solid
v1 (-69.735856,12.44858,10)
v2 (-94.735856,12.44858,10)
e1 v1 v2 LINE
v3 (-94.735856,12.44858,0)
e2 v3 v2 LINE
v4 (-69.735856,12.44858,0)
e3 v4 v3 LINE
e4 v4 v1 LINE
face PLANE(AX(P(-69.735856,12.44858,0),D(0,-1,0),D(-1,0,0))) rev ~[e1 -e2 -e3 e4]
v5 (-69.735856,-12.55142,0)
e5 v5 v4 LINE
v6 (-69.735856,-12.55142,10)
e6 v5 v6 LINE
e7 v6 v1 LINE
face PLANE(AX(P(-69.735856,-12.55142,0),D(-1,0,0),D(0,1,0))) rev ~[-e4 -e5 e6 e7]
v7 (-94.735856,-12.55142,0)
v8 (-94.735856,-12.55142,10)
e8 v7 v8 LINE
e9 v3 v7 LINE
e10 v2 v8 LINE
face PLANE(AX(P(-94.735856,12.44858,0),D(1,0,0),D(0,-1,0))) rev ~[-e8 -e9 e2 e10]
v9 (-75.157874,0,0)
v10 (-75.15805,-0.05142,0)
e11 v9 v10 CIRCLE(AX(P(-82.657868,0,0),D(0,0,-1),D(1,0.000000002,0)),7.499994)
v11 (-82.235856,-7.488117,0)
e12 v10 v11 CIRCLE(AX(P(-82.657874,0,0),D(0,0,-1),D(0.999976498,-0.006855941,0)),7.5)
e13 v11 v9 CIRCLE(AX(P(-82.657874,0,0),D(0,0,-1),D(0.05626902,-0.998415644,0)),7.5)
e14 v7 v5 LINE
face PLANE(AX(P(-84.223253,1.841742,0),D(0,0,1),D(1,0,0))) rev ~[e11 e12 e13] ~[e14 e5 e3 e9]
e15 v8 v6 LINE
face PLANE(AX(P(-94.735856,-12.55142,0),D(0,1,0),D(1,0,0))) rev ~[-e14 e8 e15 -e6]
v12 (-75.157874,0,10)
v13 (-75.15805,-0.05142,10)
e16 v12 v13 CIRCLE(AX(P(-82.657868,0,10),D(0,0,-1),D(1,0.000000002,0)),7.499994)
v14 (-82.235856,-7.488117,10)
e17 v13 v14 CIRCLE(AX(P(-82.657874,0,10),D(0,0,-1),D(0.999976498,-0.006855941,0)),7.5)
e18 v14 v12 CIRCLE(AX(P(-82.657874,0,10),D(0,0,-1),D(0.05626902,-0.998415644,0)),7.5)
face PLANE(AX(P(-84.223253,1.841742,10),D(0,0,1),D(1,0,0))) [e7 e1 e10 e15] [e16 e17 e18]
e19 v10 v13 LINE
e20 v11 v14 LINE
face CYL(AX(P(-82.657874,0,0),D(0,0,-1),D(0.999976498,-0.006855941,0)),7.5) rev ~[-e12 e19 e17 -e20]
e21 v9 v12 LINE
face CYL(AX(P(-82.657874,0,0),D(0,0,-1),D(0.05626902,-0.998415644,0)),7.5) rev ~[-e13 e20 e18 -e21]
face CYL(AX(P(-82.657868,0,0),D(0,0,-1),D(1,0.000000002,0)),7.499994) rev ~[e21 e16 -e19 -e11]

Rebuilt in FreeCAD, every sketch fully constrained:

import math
import FreeCAD as App
import Part
import Sketcher

V = App.Vector
Q = App.Units.Quantity


def add_polygon(sketch, points):
    """Adds a closed chain of lines whose ends are joined by coincident constraints."""
    first, n = sketch.GeometryCount, len(points)
    for a, b in zip(points, points[1:] + points[:1]):
        sketch.addGeometry(Part.LineSegment(App.Vector(*a, 0), App.Vector(*b, 0)), False)
    for i in range(n):
        sketch.addConstraint(Sketcher.Constraint("Coincident", first + i, 2, first + (i + 1) % n, 1))

doc = App.newDocument("Part")
body = doc.addObject("PartDesign::Body", "Body")

# Sketch on XY plane
sketch1 = body.newObject("Sketcher::SketchObject", "Sketch")
sketch1.AttachmentSupport = (doc.getObject("XY_Plane"), [""])
sketch1.MapMode = "FlatFace"
add_polygon(sketch1, [(-69.74, 12.45), (-94.74, 12.45), (-94.74, -12.55), (-69.74, -12.55)])  # lines 0-3
sketch1.addGeometry(Part.ArcOfCircle(Part.Circle(V(-82.66, 0, 0), V(0, 0, 1), 7.5), math.radians(0), math.radians(273)), False)  # 4
sketch1.addGeometry(Part.ArcOfCircle(Part.Circle(V(-82.66, 0, 0), V(0, 0, 1), 7.5), math.radians(-0.39), math.radians(0)), False)  # 5
sketch1.addGeometry(Part.ArcOfCircle(Part.Circle(V(-82.66, 0, 0), V(0, 0, 1), 7.5), math.radians(-87), math.radians(0)), False)  # 6
sketch1.addConstraint([
    Sketcher.Constraint("Tangent", 4, 1, 5, 2),
    Sketcher.Constraint("Tangent", 5, 1, 6, 2),
    Sketcher.Constraint("Coincident", 6, 1, 4, 2),
    Sketcher.Constraint("Horizontal", 0),
    Sketcher.Constraint("Vertical", 1),
    Sketcher.Constraint("Horizontal", 2),
    Sketcher.Constraint("Vertical", 3),
    Sketcher.Constraint("Equal", 4, 6),
    Sketcher.Constraint("PointOnObject", 4, 3, -1),
    Sketcher.Constraint("PointOnObject", 4, 1, -1),
    Sketcher.Constraint("Equal", 2, 1),
    Sketcher.Constraint("Radius", 4, Q("7.5 mm")),
    Sketcher.Constraint("DistanceX", 0, 2, 0, 1, Q("25 mm")),
    Sketcher.Constraint("DistanceY", 5, 1, 3, 2, Q("12.5 mm")),
    Sketcher.Constraint("DistanceX", 5, 3, -1, 1, Q("82.657868 mm")),
    Sketcher.Constraint("DistanceY", -1, 1, 0, 2, Q("12.44858 mm")),
    Sketcher.Constraint("DistanceX", 0, 2, -1, 1, Q("94.735856 mm")),
    Sketcher.Constraint("DistanceX", 6, 1, -1, 1, Q("82.235856 mm")),
])
pad1 = body.newObject("PartDesign::Pad", "Pad")
pad1.Profile = sketch1
pad1.Length = 10

doc.recompute()
